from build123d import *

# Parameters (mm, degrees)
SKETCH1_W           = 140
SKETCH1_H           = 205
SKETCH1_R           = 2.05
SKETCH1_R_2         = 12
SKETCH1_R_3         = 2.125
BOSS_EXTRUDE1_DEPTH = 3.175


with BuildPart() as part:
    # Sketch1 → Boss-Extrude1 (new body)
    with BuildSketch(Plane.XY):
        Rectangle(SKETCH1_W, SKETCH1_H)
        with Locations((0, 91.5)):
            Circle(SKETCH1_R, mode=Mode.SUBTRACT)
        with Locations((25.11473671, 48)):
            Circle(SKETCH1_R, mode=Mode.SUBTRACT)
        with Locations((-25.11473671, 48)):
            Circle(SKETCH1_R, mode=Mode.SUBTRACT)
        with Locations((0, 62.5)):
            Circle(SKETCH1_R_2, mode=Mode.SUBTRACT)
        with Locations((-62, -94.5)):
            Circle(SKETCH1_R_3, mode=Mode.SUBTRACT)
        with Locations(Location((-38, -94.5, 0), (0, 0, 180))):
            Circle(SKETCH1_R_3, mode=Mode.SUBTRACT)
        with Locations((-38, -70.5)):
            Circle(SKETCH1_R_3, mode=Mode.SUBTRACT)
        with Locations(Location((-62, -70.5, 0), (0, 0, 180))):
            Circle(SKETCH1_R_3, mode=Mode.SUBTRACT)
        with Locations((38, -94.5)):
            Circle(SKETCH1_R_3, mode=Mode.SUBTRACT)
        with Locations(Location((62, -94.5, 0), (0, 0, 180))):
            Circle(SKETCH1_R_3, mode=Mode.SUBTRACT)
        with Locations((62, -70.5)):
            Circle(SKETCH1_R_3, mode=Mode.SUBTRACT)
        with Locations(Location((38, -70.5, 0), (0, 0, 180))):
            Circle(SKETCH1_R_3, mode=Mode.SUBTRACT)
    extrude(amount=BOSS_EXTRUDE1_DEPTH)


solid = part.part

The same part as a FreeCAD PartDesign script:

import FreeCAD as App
import Part
import Sketcher

V = App.Vector


def add_polygon(sketch, points):
    """Adds a closed chain of lines whose ends are joined by coincident constraints."""
    first, n = sketch.GeometryCount, len(points)
    for a, b in zip(points, points[1:] + points[:1]):
        sketch.addGeometry(Part.LineSegment(App.Vector(*a, 0), App.Vector(*b, 0)), False)
    for i in range(n):
        sketch.addConstraint(Sketcher.Constraint("Coincident", first + i, 2, first + (i + 1) % n, 1))

doc = App.newDocument("Part")
body = doc.addObject("PartDesign::Body", "Body")

# Sketch on XY plane
sketch1 = body.newObject("Sketcher::SketchObject", "Sketch")
sketch1.AttachmentSupport = (doc.getObject("XY_Plane"), [""])
sketch1.MapMode = "FlatFace"
add_polygon(sketch1, [(-70, 102.5), (-70, -102.5), (70, -102.5), (70, 102.5)])  # lines 0-3
sketch1.addGeometry(Part.Circle(V(-62, -94.5, 0), V(0, 0, 1), 2.1), False)  # 4
sketch1.addGeometry(Part.Circle(V(-38, -94.5, 0), V(0, 0, 1), 2.1), False)  # 5
sketch1.addGeometry(Part.Circle(V(-62, -70.5, 0), V(0, 0, 1), 2.1), False)  # 6
sketch1.addGeometry(Part.Circle(V(-38, -70.5, 0), V(0, 0, 1), 2.1), False)  # 7
sketch1.addGeometry(Part.Circle(V(38, -94.5, 0), V(0, 0, 1), 2.1), False)  # 8
sketch1.addGeometry(Part.Circle(V(62, -94.5, 0), V(0, 0, 1), 2.1), False)  # 9
sketch1.addGeometry(Part.Circle(V(38, -70.5, 0), V(0, 0, 1), 2.1), False)  # 10
sketch1.addGeometry(Part.Circle(V(62, -70.5, 0), V(0, 0, 1), 2.1), False)  # 11
sketch1.addGeometry(Part.Circle(V(-25.1, 48, 0), V(0, 0, 1), 2), False)  # 12
sketch1.addGeometry(Part.Circle(V(0, 62.5, 0), V(0, 0, 1), 12), False)  # 13
sketch1.addGeometry(Part.Circle(V(25.1, 48, 0), V(0, 0, 1), 2), False)  # 14
sketch1.addGeometry(Part.Circle(V(0, 91.5, 0), V(0, 0, 1), 2), False)  # 15
sketch1.addConstraint(Sketcher.Constraint("Vertical", 0))
sketch1.addConstraint(Sketcher.Constraint("Horizontal", 1))
sketch1.addConstraint(Sketcher.Constraint("Vertical", 2))
sketch1.addConstraint(Sketcher.Constraint("Horizontal", 3))
sketch1.addConstraint(Sketcher.Constraint("Equal", 4, 5))
sketch1.addConstraint(Sketcher.Constraint("Equal", 5, 6))
sketch1.addConstraint(Sketcher.Constraint("Equal", 6, 7))
sketch1.addConstraint(Sketcher.Constraint("Equal", 7, 8))
sketch1.addConstraint(Sketcher.Constraint("Equal", 8, 9))
sketch1.addConstraint(Sketcher.Constraint("Equal", 9, 10))
sketch1.addConstraint(Sketcher.Constraint("Equal", 10, 11))
sketch1.addConstraint(Sketcher.Constraint("Equal", 12, 14))
sketch1.addConstraint(Sketcher.Constraint("Equal", 14, 15))
sketch1.addConstraint(Sketcher.Constraint("Symmetric", 0, 2, 2, 2, -1, 1))
sketch1.addConstraint(Sketcher.Constraint("Symmetric", 5, 3, 8, 3, -2))
sketch1.addConstraint(Sketcher.Constraint("Symmetric", 4, 3, 9, 3, -2))
sketch1.addConstraint(Sketcher.Constraint("Symmetric", 7, 3, 10, 3, -2))
sketch1.addConstraint(Sketcher.Constraint("Symmetric", 6, 3, 11, 3, -2))
sketch1.addConstraint(Sketcher.Constraint("Symmetric", 12, 3, 14, 3, -2))
sketch1.addConstraint(Sketcher.Constraint("PointOnObject", 13, 3, -2))
sketch1.addConstraint(Sketcher.Constraint("PointOnObject", 15, 3, -2))
sketch1.addConstraint(Sketcher.Constraint("Horizontal", 4, 3, 5, 3))
sketch1.addConstraint(Sketcher.Constraint("Horizontal", 6, 3, 7, 3))
sketch1.addConstraint(Sketcher.Constraint("Vertical", 4, 3, 6, 3))
sketch1.addConstraint(Sketcher.Constraint("Vertical", 5, 3, 7, 3))
sketch1.addConstraint(Sketcher.Constraint("Diameter", 13, 24.0))
sketch1.addConstraint(Sketcher.Constraint("Diameter", 12, 4.1))
sketch1.addConstraint(Sketcher.Constraint("Diameter", 4, 4.25))
sketch1.addConstraint(Sketcher.Constraint("DistanceX", 1, 1, 1, 2, 140.0))
sketch1.addConstraint(Sketcher.Constraint("DistanceY", 0, 2, 0, 1, 205.0))
sketch1.addConstraint(Sketcher.Constraint("DistanceX", 4, 3, -1, 1, 62.0))
sketch1.addConstraint(Sketcher.Constraint("DistanceX", 5, 3, -1, 1, 38.0))
sketch1.addConstraint(Sketcher.Constraint("DistanceY", -1, 1, 12, 3, 48.0))
sketch1.addConstraint(Sketcher.Constraint("DistanceY", 4, 3, 6, 3, 24.0))
sketch1.addConstraint(Sketcher.Constraint("DistanceY", 7, 3, 13, 3, 133.0))
sketch1.addConstraint(Sketcher.Constraint("DistanceY", 13, 3, 15, 3, 29.0))
sketch1.addConstraint(Sketcher.Constraint("DistanceY", 0, 2, 4, 3, 8.0))
sketch1.addConstraint(Sketcher.Constraint("DistanceX", 12, 3, -1, 1, 25.114737))
pad1 = body.newObject("PartDesign::Pad", "Pad")
pad1.Profile = sketch1
pad1.Length = 3.175

doc.recompute()
